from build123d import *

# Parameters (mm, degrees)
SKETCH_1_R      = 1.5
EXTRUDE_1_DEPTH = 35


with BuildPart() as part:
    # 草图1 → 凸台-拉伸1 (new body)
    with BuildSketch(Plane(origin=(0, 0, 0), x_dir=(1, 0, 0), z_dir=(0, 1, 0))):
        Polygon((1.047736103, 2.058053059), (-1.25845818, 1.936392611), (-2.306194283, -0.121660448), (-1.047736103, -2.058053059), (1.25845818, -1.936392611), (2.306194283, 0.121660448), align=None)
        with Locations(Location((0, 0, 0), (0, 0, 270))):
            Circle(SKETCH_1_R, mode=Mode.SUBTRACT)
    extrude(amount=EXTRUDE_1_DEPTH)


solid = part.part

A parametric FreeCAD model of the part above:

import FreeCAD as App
import Part
import Sketcher
Q = App.Units.Quantity


def add_polygon(sketch, points):
    """Adds a closed chain of lines whose ends are joined by coincident constraints."""
    first, n = sketch.GeometryCount, len(points)
    for a, b in zip(points, points[1:] + points[:1]):
        sketch.addGeometry(Part.LineSegment(App.Vector(*a, 0), App.Vector(*b, 0)), False)
    for i in range(n):
        sketch.addConstraint(Sketcher.Constraint("Coincident", first + i, 2, first + (i + 1) % n, 1))

doc = App.newDocument("Part")
params = doc.addObject("Spreadsheet::Sheet", "Params")
for row, (alias, value) in enumerate([
    ("sketch1_diameter", "3 mm"),
    ("pad1_length", "35 mm"),
], start=1):
    params.set(f"A{row}", alias)
    params.set(f"B{row}", "=" + value)
    params.setAlias(f"B{row}", alias)

body = doc.addObject("PartDesign::Body", "Body")

sketch1 = body.newObject("Sketcher::SketchObject", "Sketch")
sketch1.AttachmentSupport = (doc.getObject("XZ_Plane"), [""])
sketch1.MapMode = "FlatFace"
add_polygon(sketch1, [(1, -2.1), (-1.3, -1.9), (-2.3, 0.1), (-1, 2.1), (1.3, 1.9), (2.3, -0.1)])
sketch1.addGeometry(Part.Circle(App.Vector(0, 0, 0), App.Vector(0, 0, 1), 1.5), False)
sketch1.addConstraint([
    Sketcher.Constraint("Coincident", 6, 3, -1, 1),
    Sketcher.Constraint("Symmetric", 0, 2, 3, 2, -1, 1),
    Sketcher.Constraint("Symmetric", 1, 2, 4, 2, -1, 1),
    Sketcher.Constraint("Symmetric", 2, 2, 5, 2, -1, 1),
    Sketcher.Constraint("Equal", 0, 1),
    Sketcher.Constraint("Equal", 1, 2),
    Sketcher.Constraint("Diameter", 6, Q("3 mm")),
    Sketcher.Constraint("Distance", 0, Q("2.309401 mm")),
    Sketcher.Constraint("DistanceX", 0, 2, -1, 1, Q("1.258458 mm")),
    Sketcher.Constraint("DistanceY", -1, 1, 1, 2, Q("0.12166 mm")),
    Sketcher.Constraint("DistanceX", 1, 2, 2, 2, Q("1.258458 mm")),
])
sketch1.setExpression("Constraints[12]", "Params.sketch1_diameter")
pad1 = body.newObject("PartDesign::Pad", "Pad")
pad1.Profile = sketch1
pad1.setExpression("Length", "Params.pad1_length")
pad1.Reversed = True

doc.recompute()
